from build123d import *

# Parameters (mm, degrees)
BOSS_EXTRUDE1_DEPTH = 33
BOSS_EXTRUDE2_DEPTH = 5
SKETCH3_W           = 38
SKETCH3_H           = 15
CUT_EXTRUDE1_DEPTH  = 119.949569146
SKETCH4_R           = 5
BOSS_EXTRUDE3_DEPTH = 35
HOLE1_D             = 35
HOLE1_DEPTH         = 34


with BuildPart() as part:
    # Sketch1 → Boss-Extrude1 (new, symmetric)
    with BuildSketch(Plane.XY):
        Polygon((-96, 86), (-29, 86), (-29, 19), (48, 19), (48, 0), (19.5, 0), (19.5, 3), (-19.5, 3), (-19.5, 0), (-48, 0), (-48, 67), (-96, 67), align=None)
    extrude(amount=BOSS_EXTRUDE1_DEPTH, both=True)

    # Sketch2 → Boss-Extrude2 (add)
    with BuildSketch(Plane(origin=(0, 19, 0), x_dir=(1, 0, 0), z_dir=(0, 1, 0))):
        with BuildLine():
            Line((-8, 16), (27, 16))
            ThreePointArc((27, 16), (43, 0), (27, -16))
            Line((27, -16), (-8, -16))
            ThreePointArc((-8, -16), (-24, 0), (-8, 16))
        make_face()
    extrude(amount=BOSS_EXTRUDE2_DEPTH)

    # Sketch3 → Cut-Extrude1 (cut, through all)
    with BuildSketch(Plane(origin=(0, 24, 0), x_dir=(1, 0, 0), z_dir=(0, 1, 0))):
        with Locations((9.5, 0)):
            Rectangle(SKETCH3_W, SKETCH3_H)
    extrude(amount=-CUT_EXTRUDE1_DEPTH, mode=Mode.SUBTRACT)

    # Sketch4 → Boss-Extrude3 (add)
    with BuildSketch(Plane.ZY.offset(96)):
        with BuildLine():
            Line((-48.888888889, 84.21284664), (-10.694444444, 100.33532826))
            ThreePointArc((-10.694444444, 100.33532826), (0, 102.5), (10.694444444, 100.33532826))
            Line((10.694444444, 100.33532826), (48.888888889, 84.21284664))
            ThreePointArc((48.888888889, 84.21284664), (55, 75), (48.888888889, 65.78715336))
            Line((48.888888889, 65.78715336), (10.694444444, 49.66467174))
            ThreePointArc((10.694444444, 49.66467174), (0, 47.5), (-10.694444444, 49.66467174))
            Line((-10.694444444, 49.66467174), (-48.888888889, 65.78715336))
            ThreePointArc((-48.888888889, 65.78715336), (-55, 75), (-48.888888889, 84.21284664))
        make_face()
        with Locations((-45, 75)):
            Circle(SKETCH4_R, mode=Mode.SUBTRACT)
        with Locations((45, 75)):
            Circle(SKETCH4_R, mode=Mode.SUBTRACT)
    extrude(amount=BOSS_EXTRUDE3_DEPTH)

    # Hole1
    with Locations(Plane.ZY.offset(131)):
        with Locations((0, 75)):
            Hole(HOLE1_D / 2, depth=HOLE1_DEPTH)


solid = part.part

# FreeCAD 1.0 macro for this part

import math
import FreeCAD as App
import Part
import Sketcher
from FreeCAD import Vector

doc = App.newDocument("Part")
body = doc.addObject("PartDesign::Body", "Body")

# Sketch on XY plane
sketch1 = doc.addObject("Sketcher::SketchObject", "Sketch")
body.addObject(sketch1)
sketch1.AttachmentSupport = (doc.XY_Plane, [""])
sketch1.MapMode = "FlatFace"
sketch1.addGeometry(Part.LineSegment(Vector(-29, 86, 0), Vector(-96, 86, 0)), False)
sketch1.addGeometry(Part.LineSegment(Vector(-96, 86, 0), Vector(-96, 67, 0)), False)
sketch1.addGeometry(Part.LineSegment(Vector(-96, 67, 0), Vector(-48, 67, 0)), False)
sketch1.addGeometry(Part.LineSegment(Vector(-48, 67, 0), Vector(-48, 0, 0)), False)
sketch1.addGeometry(Part.LineSegment(Vector(-48, 0, 0), Vector(-19.5, 0, 0)), False)
sketch1.addGeometry(Part.LineSegment(Vector(-19.5, 0, 0), Vector(-19.5, 3, 0)), False)
sketch1.addGeometry(Part.LineSegment(Vector(-19.5, 3, 0), Vector(19.5, 3, 0)), False)
sketch1.addGeometry(Part.LineSegment(Vector(19.5, 3, 0), Vector(19.5, 0, 0)), False)
sketch1.addGeometry(Part.LineSegment(Vector(19.5, 0, 0), Vector(48, 0, 0)), False)
sketch1.addGeometry(Part.LineSegment(Vector(48, 0, 0), Vector(48, 19, 0)), False)
sketch1.addGeometry(Part.LineSegment(Vector(48, 19, 0), Vector(-29, 19, 0)), False)
sketch1.addGeometry(Part.LineSegment(Vector(-29, 19, 0), Vector(-29, 86, 0)), False)
sketch1.addConstraint(Sketcher.Constraint("Coincident", 0, 2, 1, 1))
sketch1.addConstraint(Sketcher.Constraint("Coincident", 1, 2, 2, 1))
sketch1.addConstraint(Sketcher.Constraint("Coincident", 2, 2, 3, 1))
sketch1.addConstraint(Sketcher.Constraint("Coincident", 3, 2, 4, 1))
sketch1.addConstraint(Sketcher.Constraint("Coincident", 4, 2, 5, 1))
sketch1.addConstraint(Sketcher.Constraint("Coincident", 5, 2, 6, 1))
sketch1.addConstraint(Sketcher.Constraint("Coincident", 6, 2, 7, 1))
sketch1.addConstraint(Sketcher.Constraint("Coincident", 7, 2, 8, 1))
sketch1.addConstraint(Sketcher.Constraint("Coincident", 8, 2, 9, 1))
sketch1.addConstraint(Sketcher.Constraint("Coincident", 9, 2, 10, 1))
sketch1.addConstraint(Sketcher.Constraint("Coincident", 10, 2, 11, 1))
sketch1.addConstraint(Sketcher.Constraint("Coincident", 11, 2, 0, 1))
sketch1.addConstraint(Sketcher.Constraint("Horizontal", 0))
sketch1.addConstraint(Sketcher.Constraint("Vertical", 1))
sketch1.addConstraint(Sketcher.Constraint("Horizontal", 2))
sketch1.addConstraint(Sketcher.Constraint("Vertical", 3))
sketch1.addConstraint(Sketcher.Constraint("Horizontal", 4))
sketch1.addConstraint(Sketcher.Constraint("Vertical", 5))
sketch1.addConstraint(Sketcher.Constraint("Horizontal", 6))
sketch1.addConstraint(Sketcher.Constraint("Vertical", 7))
sketch1.addConstraint(Sketcher.Constraint("Horizontal", 8))
sketch1.addConstraint(Sketcher.Constraint("Vertical", 9))
sketch1.addConstraint(Sketcher.Constraint("Horizontal", 10))
sketch1.addConstraint(Sketcher.Constraint("Vertical", 11))
sketch1.addConstraint(Sketcher.Constraint("Symmetric", 4, 2, 7, 2, -1, 1))
sketch1.addConstraint(Sketcher.Constraint("Symmetric", 3, 2, 8, 2, -2))
sketch1.addConstraint(Sketcher.Constraint("Equal", 0, 3))
sketch1.addConstraint(Sketcher.Constraint("Equal", 1, 9))
sketch1.addConstraint(Sketcher.Constraint("DistanceX", 0, 2, 0, 1, 67.0))
sketch1.addConstraint(Sketcher.Constraint("DistanceX", 2, 1, 2, 2, 48.0))
sketch1.addConstraint(Sketcher.Constraint("DistanceX", 6, 1, 6, 2, 39.0))
sketch1.addConstraint(Sketcher.Constraint("DistanceX", 10, 2, 10, 1, 77.0))
sketch1.addConstraint(Sketcher.Constraint("DistanceY", 1, 2, 1, 1, 19.0))
sketch1.addConstraint(Sketcher.Constraint("DistanceY", 5, 1, 5, 2, 3.0))
pad1 = doc.addObject("PartDesign::Pad", "Pad")
body.addObject(pad1)
pad1.Profile = sketch1
pad1.Length = 66
pad1.Midplane = True

# Sketch on XZ plane
sketch2 = doc.addObject("Sketcher::SketchObject", "Sketch001")
body.addObject(sketch2)
sketch2.AttachmentSupport = (doc.XZ_Plane, [""])
sketch2.MapMode = "FlatFace"
sketch2.AttachmentOffset = App.Placement(Vector(0, 0, -19), App.Rotation())
sketch2.addGeometry(Part.LineSegment(Vector(27, -16, 0), Vector(-8, -16, 0)), False)
sketch2.addGeometry(Part.ArcOfCircle(Part.Circle(Vector(-8, 0, 0), Vector(0, 0, 1), 16), math.radians(90), math.radians(270)), False)
sketch2.addGeometry(Part.LineSegment(Vector(-8, 16, 0), Vector(27, 16, 0)), False)
sketch2.addGeometry(Part.ArcOfCircle(Part.Circle(Vector(27, 0, 0), Vector(0, 0, 1), 16), math.radians(-90), math.radians(90)), False)
sketch2.addConstraint(Sketcher.Constraint("Tangent", 0, 2, 1, 2))
sketch2.addConstraint(Sketcher.Constraint("Tangent", 1, 1, 2, 1))
sketch2.addConstraint(Sketcher.Constraint("Tangent", 2, 2, 3, 2))
sketch2.addConstraint(Sketcher.Constraint("Tangent", 3, 1, 0, 1))
sketch2.addConstraint(Sketcher.Constraint("Horizontal", 0))
sketch2.addConstraint(Sketcher.Constraint("Horizontal", 2))
sketch2.addConstraint(Sketcher.Constraint("PointOnObject", 1, 3, -1))
sketch2.addConstraint(Sketcher.Constraint("Radius", 1, 16.0))
sketch2.addConstraint(Sketcher.Constraint("DistanceX", 0, 2, 0, 1, 35.0))
sketch2.addConstraint(Sketcher.Constraint("DistanceX", 1, 3, -1, 1, 8.0))
pad2 = doc.addObject("PartDesign::Pad", "Pad001")
body.addObject(pad2)
pad2.Profile = sketch2
pad2.Length = 5
pad2.Reversed = True

# Sketch on XZ plane
sketch3 = doc.addObject("Sketcher::SketchObject", "Sketch002")
body.addObject(sketch3)
sketch3.AttachmentSupport = (doc.XZ_Plane, [""])
sketch3.MapMode = "FlatFace"
sketch3.AttachmentOffset = App.Placement(Vector(0, 0, -24), App.Rotation())
sketch3.addGeometry(Part.LineSegment(Vector(-9.5, -7.5, 0), Vector(-9.5, 7.5, 0)), False)
sketch3.addGeometry(Part.LineSegment(Vector(-9.5, 7.5, 0), Vector(28.5, 7.5, 0)), False)
sketch3.addGeometry(Part.LineSegment(Vector(28.5, 7.5, 0), Vector(28.5, -7.5, 0)), False)
sketch3.addGeometry(Part.LineSegment(Vector(28.5, -7.5, 0), Vector(-9.5, -7.5, 0)), False)
sketch3.addConstraint(Sketcher.Constraint("Coincident", 0, 2, 1, 1))
sketch3.addConstraint(Sketcher.Constraint("Coincident", 1, 2, 2, 1))
sketch3.addConstraint(Sketcher.Constraint("Coincident", 2, 2, 3, 1))
sketch3.addConstraint(Sketcher.Constraint("Coincident", 3, 2, 0, 1))
sketch3.addConstraint(Sketcher.Constraint("Vertical", 0))
sketch3.addConstraint(Sketcher.Constraint("Horizontal", 1))
sketch3.addConstraint(Sketcher.Constraint("Vertical", 2))
sketch3.addConstraint(Sketcher.Constraint("Horizontal", 3))
sketch3.addConstraint(Sketcher.Constraint("DistanceX", 1, 1, 1, 2, 38.0))
sketch3.addConstraint(Sketcher.Constraint("DistanceY", 0, 1, 0, 2, 15.0))
sketch3.addConstraint(Sketcher.Constraint("DistanceX", 0, 2, -1, 1, 9.5))
sketch3.addConstraint(Sketcher.Constraint("DistanceY", -1, 1, 0, 2, 7.5))
pocket1 = doc.addObject("PartDesign::Pocket", "Pocket")
body.addObject(pocket1)
pocket1.Profile = sketch3
pocket1.Type = "ThroughAll"
pocket1.Reversed = True

# Sketch on YZ plane
sketch4 = doc.addObject("Sketcher::SketchObject", "Sketch003")
body.addObject(sketch4)
sketch4.AttachmentSupport = (doc.YZ_Plane, [""])
sketch4.MapMode = "FlatFace"
sketch4.AttachmentOffset = App.Placement(Vector(0, 0, -96), App.Rotation())
sketch4.addGeometry(Part.LineSegment(Vector(100.335328, -10.694444, 0), Vector(84.212847, -48.888889, 0)), False)
sketch4.addGeometry(Part.ArcOfCircle(Part.Circle(Vector(75, -45, 0), Vector(0, 0, 1), 10), math.radians(-157.11462), math.radians(-22.88538)), False)
sketch4.addGeometry(Part.LineSegment(Vector(65.787153, -48.888889, 0), Vector(49.664672, -10.694444, 0)), False)
sketch4.addGeometry(Part.ArcOfCircle(Part.Circle(Vector(75, 0, 0), Vector(0, 0, 1), 27.5), math.radians(157.11462), math.radians(202.88538)), False)
sketch4.addGeometry(Part.LineSegment(Vector(49.664672, 10.694444, 0), Vector(65.787153, 48.888889, 0)), False)
sketch4.addGeometry(Part.ArcOfCircle(Part.Circle(Vector(75, 45, 0), Vector(0, 0, 1), 10), math.radians(22.88538), math.radians(157.11462)), False)
sketch4.addGeometry(Part.LineSegment(Vector(84.212847, 48.888889, 0), Vector(100.335328, 10.694444, 0)), False)
sketch4.addGeometry(Part.ArcOfCircle(Part.Circle(Vector(75, 0, 0), Vector(0, 0, 1), 27.5), math.radians(-22.88538), math.radians(22.88538)), False)
sketch4.addGeometry(Part.Circle(Vector(75, 45, 0), Vector(0, 0, 1), 5), False)
sketch4.addGeometry(Part.Circle(Vector(75, -45, 0), Vector(0, 0, 1), 5), False)
sketch4.addConstraint(Sketcher.Constraint("Tangent", 0, 2, 1, 2))
sketch4.addConstraint(Sketcher.Constraint("Tangent", 1, 1, 2, 1))
sketch4.addConstraint(Sketcher.Constraint("Tangent", 2, 2, 3, 2))
sketch4.addConstraint(Sketcher.Constraint("Tangent", 3, 1, 4, 1))
sketch4.addConstraint(Sketcher.Constraint("Tangent", 4, 2, 5, 2))
sketch4.addConstraint(Sketcher.Constraint("Tangent", 5, 1, 6, 1))
sketch4.addConstraint(Sketcher.Constraint("Tangent", 6, 2, 7, 2))
sketch4.addConstraint(Sketcher.Constraint("Tangent", 7, 1, 0, 1))
sketch4.addConstraint(Sketcher.Constraint("Coincident", 7, 3, 3, 3))
sketch4.addConstraint(Sketcher.Constraint("Coincident", 8, 3, 5, 3))
sketch4.addConstraint(Sketcher.Constraint("Coincident", 9, 3, 1, 3))
sketch4.addConstraint(Sketcher.Constraint("Equal", 1, 5))
sketch4.addConstraint(Sketcher.Constraint("Equal", 3, 7))
sketch4.addConstraint(Sketcher.Constraint("Equal", 8, 9))
sketch4.addConstraint(Sketcher.Constraint("Symmetric", 1, 3, 5, 3, -1))
sketch4.addConstraint(Sketcher.Constraint("PointOnObject", 3, 3, -1))
sketch4.addConstraint(Sketcher.Constraint("Parallel", 0, 4))
sketch4.addConstraint(Sketcher.Constraint("Diameter", 8, 10.0))
sketch4.addConstraint(Sketcher.Constraint("Radius", 1, 10.0))
sketch4.addConstraint(Sketcher.Constraint("Radius", 3, 27.5))
sketch4.addConstraint(Sketcher.Constraint("DistanceX", -1, 1, 1, 3, 75.0))
sketch4.addConstraint(Sketcher.Constraint("DistanceY", 1, 3, -1, 1, 45.0))
pad3 = doc.addObject("PartDesign::Pad", "Pad002")
body.addObject(pad3)
pad3.Profile = sketch4
pad3.Length = 35
pad3.Reversed = True

# Sketch on YZ plane
sketch5 = doc.addObject("Sketcher::SketchObject", "Sketch004")
body.addObject(sketch5)
sketch5.AttachmentSupport = (doc.YZ_Plane, [""])
sketch5.MapMode = "FlatFace"
sketch5.AttachmentOffset = App.Placement(Vector(0, 0, -131), App.Rotation())
sketch5.addGeometry(Part.Circle(Vector(75, 0, 0), Vector(0, 0, 1), 17.5), False)
sketch5.addConstraint(Sketcher.Constraint("PointOnObject", 0, 3, -1))
sketch5.addConstraint(Sketcher.Constraint("Diameter", 0, 35.0))
sketch5.addConstraint(Sketcher.Constraint("DistanceX", -1, 1, 0, 3, 75.0))
doc.recompute()
hole = doc.addObject("PartDesign::Hole", "Hole")
body.addObject(hole)
hole.Profile = sketch5
hole.ThreadType = "None"
hole.Diameter = 35
hole.DepthType = "Dimension"
hole.Depth = 34
hole.DrillPoint = "Flat"
hole.Reversed = True

doc.recompute()
